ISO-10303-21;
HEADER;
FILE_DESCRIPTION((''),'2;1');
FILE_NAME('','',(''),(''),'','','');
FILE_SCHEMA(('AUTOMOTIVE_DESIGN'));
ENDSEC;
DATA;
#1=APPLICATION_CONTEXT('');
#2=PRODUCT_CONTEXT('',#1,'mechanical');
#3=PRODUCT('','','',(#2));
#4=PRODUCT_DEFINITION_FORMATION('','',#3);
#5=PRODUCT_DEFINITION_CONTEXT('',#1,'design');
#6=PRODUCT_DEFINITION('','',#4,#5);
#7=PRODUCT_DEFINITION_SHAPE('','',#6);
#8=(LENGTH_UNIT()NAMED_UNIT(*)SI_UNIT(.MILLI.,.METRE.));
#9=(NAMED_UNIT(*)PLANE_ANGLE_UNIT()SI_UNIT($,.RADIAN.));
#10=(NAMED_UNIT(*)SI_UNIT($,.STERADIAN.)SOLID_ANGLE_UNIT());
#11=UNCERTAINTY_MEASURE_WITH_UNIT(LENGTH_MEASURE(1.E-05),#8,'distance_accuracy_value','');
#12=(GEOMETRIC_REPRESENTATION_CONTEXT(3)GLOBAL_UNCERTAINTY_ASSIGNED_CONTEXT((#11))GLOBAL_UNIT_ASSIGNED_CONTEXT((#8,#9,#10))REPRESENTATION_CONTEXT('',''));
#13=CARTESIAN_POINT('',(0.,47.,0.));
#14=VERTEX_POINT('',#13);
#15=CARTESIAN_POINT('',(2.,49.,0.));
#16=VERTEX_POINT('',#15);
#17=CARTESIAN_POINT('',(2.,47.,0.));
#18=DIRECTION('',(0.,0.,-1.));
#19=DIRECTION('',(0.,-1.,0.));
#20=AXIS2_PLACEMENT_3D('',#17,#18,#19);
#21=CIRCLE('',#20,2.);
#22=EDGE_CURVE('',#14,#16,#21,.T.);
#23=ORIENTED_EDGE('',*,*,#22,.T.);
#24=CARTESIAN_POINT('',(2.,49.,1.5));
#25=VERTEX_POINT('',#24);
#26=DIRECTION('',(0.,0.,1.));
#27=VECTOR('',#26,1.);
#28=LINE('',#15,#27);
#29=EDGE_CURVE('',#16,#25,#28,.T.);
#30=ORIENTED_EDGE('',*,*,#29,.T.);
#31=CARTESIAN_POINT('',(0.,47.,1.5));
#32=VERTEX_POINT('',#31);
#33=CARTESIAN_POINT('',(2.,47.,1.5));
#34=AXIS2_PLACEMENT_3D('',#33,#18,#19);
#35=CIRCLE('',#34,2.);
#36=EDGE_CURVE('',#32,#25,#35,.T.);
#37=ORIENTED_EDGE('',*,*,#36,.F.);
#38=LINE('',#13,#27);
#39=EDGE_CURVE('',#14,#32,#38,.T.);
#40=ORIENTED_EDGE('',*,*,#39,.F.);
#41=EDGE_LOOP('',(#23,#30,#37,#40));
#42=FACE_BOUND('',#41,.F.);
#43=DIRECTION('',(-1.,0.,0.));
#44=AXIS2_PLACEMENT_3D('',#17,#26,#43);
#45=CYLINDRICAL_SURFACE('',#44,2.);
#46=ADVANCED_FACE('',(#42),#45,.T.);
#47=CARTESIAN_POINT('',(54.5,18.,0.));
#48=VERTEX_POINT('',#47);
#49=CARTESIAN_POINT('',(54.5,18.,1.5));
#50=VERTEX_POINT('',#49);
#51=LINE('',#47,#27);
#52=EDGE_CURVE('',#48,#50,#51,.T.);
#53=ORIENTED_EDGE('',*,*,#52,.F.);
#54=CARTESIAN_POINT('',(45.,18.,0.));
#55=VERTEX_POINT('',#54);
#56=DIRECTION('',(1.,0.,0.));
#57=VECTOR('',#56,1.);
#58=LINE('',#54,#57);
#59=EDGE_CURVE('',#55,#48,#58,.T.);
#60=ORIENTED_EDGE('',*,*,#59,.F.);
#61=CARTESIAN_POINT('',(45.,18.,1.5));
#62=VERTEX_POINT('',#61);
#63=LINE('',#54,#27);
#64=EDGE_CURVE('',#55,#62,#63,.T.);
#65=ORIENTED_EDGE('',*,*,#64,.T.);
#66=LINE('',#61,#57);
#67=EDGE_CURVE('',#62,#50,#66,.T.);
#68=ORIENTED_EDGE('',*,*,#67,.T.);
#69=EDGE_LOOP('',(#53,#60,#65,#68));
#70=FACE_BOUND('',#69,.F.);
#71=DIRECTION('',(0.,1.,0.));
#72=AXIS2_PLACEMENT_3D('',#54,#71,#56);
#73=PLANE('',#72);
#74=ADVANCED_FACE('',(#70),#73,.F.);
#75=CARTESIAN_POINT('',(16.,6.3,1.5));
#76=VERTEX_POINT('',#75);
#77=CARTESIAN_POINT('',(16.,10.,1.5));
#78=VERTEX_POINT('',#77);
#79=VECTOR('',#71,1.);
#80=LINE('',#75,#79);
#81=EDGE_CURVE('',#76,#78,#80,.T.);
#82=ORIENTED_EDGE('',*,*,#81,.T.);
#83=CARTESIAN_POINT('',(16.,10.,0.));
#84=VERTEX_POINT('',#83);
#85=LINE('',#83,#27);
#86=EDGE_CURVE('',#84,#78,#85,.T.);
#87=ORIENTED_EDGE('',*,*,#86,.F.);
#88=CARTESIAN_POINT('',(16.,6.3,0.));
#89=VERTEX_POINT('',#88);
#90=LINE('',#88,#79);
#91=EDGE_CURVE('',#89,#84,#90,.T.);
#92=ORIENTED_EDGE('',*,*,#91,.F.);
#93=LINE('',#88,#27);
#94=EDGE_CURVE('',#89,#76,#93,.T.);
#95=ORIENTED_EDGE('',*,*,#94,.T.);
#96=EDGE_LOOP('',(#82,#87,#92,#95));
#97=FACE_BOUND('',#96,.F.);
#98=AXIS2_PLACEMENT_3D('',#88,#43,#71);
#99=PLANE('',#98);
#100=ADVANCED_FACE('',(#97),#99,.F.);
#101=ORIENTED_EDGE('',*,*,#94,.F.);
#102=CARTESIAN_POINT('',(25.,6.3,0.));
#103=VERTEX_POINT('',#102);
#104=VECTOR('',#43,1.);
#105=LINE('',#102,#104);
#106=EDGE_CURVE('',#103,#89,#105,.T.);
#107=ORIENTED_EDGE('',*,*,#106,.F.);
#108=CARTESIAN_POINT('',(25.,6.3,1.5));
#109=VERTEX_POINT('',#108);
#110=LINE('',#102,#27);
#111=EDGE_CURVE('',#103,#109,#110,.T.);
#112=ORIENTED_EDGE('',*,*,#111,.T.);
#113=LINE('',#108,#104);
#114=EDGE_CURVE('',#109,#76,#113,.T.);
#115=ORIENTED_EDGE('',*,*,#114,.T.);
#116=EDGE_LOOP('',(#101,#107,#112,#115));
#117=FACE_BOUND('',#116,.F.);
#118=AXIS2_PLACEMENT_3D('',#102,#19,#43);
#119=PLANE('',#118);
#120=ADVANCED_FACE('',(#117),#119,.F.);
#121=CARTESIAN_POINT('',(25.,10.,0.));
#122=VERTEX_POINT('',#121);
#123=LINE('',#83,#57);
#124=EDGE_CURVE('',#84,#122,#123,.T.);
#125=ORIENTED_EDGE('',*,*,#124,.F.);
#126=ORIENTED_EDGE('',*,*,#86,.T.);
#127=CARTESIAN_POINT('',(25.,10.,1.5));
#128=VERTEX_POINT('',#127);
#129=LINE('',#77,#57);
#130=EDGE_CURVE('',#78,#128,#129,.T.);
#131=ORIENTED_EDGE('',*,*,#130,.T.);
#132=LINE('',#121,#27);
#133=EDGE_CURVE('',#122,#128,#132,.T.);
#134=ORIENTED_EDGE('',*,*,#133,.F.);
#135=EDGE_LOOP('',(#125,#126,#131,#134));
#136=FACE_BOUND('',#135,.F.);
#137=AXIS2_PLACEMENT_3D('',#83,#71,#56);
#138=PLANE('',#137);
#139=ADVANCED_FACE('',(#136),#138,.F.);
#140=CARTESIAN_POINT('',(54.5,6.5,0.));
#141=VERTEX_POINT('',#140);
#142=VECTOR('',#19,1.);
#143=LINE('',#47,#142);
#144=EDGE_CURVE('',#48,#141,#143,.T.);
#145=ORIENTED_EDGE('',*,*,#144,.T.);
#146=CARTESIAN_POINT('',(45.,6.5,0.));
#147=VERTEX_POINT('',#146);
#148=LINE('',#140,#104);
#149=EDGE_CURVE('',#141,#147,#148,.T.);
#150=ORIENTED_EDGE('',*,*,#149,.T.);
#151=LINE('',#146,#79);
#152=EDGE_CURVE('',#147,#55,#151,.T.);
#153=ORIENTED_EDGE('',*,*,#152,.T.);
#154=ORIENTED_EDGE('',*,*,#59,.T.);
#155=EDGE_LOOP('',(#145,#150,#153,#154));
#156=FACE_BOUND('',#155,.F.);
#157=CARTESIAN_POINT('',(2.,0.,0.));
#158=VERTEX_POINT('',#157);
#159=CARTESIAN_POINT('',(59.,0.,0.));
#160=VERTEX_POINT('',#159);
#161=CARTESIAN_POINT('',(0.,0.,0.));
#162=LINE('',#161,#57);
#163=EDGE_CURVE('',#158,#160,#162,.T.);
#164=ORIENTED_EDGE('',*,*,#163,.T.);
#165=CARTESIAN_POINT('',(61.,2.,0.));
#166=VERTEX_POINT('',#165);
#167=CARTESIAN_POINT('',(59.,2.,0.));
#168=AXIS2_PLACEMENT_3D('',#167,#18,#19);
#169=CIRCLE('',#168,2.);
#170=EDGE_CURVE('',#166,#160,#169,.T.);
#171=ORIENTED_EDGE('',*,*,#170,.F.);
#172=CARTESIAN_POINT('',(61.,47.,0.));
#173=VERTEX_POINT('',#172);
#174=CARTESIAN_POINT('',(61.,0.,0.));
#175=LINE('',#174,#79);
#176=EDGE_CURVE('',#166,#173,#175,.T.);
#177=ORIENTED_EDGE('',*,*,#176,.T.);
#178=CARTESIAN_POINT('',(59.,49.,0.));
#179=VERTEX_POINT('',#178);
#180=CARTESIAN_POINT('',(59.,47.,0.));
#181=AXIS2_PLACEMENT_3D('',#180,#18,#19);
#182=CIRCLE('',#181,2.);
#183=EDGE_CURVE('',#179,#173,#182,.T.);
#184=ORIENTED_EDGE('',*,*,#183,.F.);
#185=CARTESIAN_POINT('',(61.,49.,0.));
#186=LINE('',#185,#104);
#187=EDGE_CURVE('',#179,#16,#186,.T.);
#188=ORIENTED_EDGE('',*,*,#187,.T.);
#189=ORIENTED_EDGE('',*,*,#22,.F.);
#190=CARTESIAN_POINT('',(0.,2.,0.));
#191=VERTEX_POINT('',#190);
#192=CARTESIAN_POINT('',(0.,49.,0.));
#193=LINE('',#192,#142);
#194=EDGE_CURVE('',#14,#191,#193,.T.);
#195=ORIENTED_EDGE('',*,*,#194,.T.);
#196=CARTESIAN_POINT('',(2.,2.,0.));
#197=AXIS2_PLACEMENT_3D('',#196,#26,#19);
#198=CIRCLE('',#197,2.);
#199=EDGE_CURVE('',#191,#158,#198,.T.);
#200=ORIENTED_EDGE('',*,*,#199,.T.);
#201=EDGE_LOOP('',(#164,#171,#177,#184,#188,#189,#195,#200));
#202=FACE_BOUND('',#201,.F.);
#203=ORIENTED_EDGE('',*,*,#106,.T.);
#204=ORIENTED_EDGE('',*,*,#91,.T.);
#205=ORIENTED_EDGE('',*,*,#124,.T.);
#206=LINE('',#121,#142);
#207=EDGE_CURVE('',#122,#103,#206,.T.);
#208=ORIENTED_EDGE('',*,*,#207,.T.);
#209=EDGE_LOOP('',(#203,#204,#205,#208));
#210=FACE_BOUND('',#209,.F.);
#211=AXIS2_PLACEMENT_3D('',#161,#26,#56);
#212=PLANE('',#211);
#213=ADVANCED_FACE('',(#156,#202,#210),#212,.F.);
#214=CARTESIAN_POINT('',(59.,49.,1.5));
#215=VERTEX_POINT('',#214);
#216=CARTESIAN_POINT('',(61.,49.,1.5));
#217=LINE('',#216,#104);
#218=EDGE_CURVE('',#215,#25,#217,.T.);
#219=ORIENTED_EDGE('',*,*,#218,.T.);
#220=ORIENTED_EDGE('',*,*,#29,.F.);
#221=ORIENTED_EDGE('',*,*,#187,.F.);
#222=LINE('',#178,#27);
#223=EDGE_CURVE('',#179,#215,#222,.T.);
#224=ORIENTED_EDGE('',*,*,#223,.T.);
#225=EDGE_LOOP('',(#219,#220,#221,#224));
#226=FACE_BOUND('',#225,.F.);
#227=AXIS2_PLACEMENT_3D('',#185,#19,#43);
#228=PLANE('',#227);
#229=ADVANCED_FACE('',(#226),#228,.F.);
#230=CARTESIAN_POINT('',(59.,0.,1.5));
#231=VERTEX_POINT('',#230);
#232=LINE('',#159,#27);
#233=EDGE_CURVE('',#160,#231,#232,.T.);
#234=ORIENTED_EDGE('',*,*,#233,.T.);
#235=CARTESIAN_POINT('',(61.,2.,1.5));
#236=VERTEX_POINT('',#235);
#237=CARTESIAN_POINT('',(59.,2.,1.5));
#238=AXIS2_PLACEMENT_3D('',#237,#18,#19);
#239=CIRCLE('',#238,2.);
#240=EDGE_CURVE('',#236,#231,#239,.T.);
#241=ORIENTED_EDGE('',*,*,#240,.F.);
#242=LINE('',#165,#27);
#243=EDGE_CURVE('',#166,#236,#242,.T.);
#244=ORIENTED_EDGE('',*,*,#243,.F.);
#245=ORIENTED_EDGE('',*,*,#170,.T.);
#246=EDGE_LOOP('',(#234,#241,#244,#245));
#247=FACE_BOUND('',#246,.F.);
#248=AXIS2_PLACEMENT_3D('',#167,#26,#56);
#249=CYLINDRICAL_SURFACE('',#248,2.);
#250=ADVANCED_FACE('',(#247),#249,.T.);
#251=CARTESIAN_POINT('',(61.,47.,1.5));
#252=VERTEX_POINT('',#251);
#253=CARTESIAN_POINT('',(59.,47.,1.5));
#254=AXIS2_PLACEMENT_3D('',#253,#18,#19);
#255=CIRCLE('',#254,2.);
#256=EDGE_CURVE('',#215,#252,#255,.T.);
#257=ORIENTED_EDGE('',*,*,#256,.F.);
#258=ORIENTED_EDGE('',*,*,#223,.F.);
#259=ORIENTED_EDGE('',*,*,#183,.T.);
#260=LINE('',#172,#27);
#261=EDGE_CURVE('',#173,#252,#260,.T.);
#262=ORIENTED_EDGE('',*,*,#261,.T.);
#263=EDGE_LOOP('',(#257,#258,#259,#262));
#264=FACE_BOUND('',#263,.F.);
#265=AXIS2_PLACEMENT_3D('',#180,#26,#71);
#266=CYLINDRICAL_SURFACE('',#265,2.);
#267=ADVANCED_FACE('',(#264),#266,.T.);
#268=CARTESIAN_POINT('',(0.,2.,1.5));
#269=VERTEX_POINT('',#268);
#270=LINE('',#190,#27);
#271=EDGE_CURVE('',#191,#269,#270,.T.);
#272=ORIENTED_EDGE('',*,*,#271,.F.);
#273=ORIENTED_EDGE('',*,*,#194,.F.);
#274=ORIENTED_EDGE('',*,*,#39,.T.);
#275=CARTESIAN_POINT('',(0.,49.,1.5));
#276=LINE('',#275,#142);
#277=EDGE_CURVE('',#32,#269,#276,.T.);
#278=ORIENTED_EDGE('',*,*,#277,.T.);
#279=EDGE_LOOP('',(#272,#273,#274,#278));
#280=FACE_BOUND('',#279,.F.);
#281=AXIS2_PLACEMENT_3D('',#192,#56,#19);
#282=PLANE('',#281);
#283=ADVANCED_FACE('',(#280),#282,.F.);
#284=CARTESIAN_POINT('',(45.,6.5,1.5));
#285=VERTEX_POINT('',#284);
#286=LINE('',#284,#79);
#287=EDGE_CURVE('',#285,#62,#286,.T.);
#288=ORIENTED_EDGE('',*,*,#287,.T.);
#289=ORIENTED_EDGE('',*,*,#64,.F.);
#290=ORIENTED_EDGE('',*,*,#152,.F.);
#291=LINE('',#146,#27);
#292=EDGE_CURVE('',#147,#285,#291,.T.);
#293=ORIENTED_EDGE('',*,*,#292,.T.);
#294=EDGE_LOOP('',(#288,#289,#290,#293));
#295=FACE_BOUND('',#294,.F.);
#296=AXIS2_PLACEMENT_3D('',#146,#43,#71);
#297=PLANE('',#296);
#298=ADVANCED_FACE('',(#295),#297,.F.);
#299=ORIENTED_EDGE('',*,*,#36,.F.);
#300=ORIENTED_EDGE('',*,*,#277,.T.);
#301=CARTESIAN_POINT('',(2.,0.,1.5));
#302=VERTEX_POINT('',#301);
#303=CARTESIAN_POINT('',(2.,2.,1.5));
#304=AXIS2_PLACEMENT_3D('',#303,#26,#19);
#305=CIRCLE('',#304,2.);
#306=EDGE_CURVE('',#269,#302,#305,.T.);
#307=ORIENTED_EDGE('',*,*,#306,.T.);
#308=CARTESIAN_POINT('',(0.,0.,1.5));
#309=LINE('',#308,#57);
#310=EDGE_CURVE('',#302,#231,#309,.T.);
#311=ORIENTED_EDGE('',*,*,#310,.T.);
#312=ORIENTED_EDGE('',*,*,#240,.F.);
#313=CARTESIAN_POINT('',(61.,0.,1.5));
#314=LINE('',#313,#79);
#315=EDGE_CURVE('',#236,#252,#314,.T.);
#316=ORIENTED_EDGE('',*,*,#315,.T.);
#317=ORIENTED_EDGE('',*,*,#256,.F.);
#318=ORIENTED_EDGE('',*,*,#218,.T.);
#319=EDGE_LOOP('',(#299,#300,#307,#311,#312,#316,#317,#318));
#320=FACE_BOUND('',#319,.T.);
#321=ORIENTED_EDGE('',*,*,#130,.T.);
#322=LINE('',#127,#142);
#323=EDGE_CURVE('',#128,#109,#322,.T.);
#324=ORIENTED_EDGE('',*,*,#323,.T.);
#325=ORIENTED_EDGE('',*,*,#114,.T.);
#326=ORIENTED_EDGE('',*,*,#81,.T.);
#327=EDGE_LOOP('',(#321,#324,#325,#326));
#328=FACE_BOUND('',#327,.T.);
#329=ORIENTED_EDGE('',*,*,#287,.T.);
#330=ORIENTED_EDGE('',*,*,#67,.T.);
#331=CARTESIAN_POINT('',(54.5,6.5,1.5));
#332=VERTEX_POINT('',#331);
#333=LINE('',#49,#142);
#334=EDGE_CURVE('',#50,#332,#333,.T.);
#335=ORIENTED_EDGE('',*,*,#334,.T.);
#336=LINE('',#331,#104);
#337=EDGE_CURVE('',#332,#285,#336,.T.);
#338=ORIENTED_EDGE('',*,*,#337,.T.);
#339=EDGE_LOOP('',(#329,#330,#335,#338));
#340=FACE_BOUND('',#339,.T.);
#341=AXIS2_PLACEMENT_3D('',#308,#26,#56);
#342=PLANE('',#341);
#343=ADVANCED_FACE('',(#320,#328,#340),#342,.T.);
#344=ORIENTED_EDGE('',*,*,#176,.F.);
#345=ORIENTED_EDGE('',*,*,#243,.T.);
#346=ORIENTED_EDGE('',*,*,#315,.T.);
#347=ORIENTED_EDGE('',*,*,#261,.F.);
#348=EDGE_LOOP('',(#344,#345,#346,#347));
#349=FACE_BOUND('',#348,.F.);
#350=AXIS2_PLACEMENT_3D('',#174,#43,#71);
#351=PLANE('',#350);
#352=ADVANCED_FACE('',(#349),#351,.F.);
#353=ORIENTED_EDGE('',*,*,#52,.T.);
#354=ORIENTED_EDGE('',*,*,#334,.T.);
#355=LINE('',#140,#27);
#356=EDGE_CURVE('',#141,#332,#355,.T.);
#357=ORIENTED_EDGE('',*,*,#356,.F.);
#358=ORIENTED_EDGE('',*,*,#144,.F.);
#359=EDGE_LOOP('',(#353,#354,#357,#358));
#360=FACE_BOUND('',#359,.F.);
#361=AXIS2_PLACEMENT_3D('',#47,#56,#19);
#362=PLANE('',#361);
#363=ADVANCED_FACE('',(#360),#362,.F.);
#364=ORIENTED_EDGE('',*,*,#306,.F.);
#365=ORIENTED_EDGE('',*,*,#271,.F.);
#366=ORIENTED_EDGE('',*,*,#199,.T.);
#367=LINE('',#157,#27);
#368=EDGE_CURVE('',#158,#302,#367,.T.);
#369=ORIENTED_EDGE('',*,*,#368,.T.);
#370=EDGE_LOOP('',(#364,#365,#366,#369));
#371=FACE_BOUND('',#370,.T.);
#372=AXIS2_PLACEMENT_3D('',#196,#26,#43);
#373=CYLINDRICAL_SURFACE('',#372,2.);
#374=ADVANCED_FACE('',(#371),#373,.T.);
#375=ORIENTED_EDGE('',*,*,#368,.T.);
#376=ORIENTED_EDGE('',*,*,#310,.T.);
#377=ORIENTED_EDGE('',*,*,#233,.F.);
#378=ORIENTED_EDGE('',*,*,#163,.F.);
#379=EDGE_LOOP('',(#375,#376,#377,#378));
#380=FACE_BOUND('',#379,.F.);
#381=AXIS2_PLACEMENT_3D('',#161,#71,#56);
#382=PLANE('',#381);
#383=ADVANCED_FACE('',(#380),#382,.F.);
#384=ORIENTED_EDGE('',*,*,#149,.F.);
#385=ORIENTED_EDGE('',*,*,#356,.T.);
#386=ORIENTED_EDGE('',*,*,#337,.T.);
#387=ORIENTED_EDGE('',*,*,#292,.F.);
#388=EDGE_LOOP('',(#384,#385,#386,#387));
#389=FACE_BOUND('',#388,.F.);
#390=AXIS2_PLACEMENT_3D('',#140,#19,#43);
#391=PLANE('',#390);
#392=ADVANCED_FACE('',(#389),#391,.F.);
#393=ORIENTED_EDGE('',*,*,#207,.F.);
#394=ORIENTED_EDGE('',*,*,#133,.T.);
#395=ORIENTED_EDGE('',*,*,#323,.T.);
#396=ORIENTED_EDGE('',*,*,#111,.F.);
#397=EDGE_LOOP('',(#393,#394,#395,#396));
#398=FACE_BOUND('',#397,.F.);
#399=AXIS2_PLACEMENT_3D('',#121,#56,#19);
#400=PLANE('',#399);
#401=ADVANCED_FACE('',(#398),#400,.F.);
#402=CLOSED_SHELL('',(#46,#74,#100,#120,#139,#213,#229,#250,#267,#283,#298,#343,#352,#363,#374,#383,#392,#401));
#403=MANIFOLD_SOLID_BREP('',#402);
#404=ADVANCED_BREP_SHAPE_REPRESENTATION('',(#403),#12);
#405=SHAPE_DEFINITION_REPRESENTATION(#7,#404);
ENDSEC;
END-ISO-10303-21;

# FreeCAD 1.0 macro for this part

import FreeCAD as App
import Part
import Sketcher
Q = App.Units.Quantity


def edges_at(feature, points):
    """Names of the edges that pass closest to the given points."""
    edges = feature.Shape.Edges
    near = lambda p: min(range(len(edges)), key=lambda i: edges[i].distToShape(Part.Vertex(*p))[0])
    return sorted({f"Edge{near(p) + 1}" for p in points})


def add_polygon(sketch, points):
    """Adds a closed chain of lines whose ends are joined by coincident constraints."""
    first, n = sketch.GeometryCount, len(points)
    for a, b in zip(points, points[1:] + points[:1]):
        sketch.addGeometry(Part.LineSegment(App.Vector(*a, 0), App.Vector(*b, 0)), False)
    for i in range(n):
        sketch.addConstraint(Sketcher.Constraint("Coincident", first + i, 2, first + (i + 1) % n, 1))

doc = App.newDocument("Part")
body = doc.addObject("PartDesign::Body", "Body")

# Sketch on XY plane
sketch1 = body.newObject("Sketcher::SketchObject", "Sketch")
sketch1.AttachmentSupport = (doc.getObject("XY_Plane"), [""])
sketch1.MapMode = "FlatFace"
add_polygon(sketch1, [(0, 49), (0, 0), (61, 0), (61, 49)])  # lines 0-3
add_polygon(sketch1, [(16, 6.3), (16, 10), (25, 10), (25, 6.3)])  # lines 4-7
add_polygon(sketch1, [(45, 6.5), (45, 18), (54.5, 18), (54.5, 6.5)])  # lines 8-11
sketch1.addConstraint(Sketcher.Constraint("Vertical", 0))
sketch1.addConstraint(Sketcher.Constraint("Horizontal", 1))
sketch1.addConstraint(Sketcher.Constraint("Vertical", 2))
sketch1.addConstraint(Sketcher.Constraint("Horizontal", 3))
sketch1.addConstraint(Sketcher.Constraint("Vertical", 4))
sketch1.addConstraint(Sketcher.Constraint("Horizontal", 5))
sketch1.addConstraint(Sketcher.Constraint("Vertical", 6))
sketch1.addConstraint(Sketcher.Constraint("Horizontal", 7))
sketch1.addConstraint(Sketcher.Constraint("Vertical", 8))
sketch1.addConstraint(Sketcher.Constraint("Horizontal", 9))
sketch1.addConstraint(Sketcher.Constraint("Vertical", 10))
sketch1.addConstraint(Sketcher.Constraint("Horizontal", 11))
sketch1.addConstraint(Sketcher.Constraint("Coincident", 0, 2, -1, 1))
sketch1.addConstraint(Sketcher.Constraint("DistanceX", 1, 1, 1, 2, Q("61 mm")))
sketch1.addConstraint(Sketcher.Constraint("DistanceX", 5, 1, 5, 2, Q("9 mm")))
sketch1.addConstraint(Sketcher.Constraint("DistanceY", 0, 2, 0, 1, Q("49 mm")))
sketch1.addConstraint(Sketcher.Constraint("DistanceX", 9, 1, 9, 2, Q("9.5 mm")))
sketch1.addConstraint(Sketcher.Constraint("DistanceY", 4, 1, 4, 2, Q("3.7 mm")))
sketch1.addConstraint(Sketcher.Constraint("DistanceY", 8, 1, 8, 2, Q("11.5 mm")))
sketch1.addConstraint(Sketcher.Constraint("DistanceX", -1, 1, 4, 2, Q("16 mm")))
sketch1.addConstraint(Sketcher.Constraint("DistanceY", -1, 1, 4, 2, Q("10 mm")))
sketch1.addConstraint(Sketcher.Constraint("DistanceX", -1, 1, 8, 2, Q("45 mm")))
sketch1.addConstraint(Sketcher.Constraint("DistanceY", -1, 1, 8, 2, Q("18 mm")))
pad1 = body.newObject("PartDesign::Pad", "Pad")
pad1.Profile = sketch1
pad1.Length = 1.5
doc.recompute()

fillet = body.newObject("PartDesign::Fillet", "Fillet")
fillet.Base = (pad1, edges_at(pad1, [
    (0, 0, 0.75),
    (61, 0, 0.75),
    (61, 49, 0.75),
    (0, 49, 0.75),
]))
fillet.Radius = 2

doc.recompute()
